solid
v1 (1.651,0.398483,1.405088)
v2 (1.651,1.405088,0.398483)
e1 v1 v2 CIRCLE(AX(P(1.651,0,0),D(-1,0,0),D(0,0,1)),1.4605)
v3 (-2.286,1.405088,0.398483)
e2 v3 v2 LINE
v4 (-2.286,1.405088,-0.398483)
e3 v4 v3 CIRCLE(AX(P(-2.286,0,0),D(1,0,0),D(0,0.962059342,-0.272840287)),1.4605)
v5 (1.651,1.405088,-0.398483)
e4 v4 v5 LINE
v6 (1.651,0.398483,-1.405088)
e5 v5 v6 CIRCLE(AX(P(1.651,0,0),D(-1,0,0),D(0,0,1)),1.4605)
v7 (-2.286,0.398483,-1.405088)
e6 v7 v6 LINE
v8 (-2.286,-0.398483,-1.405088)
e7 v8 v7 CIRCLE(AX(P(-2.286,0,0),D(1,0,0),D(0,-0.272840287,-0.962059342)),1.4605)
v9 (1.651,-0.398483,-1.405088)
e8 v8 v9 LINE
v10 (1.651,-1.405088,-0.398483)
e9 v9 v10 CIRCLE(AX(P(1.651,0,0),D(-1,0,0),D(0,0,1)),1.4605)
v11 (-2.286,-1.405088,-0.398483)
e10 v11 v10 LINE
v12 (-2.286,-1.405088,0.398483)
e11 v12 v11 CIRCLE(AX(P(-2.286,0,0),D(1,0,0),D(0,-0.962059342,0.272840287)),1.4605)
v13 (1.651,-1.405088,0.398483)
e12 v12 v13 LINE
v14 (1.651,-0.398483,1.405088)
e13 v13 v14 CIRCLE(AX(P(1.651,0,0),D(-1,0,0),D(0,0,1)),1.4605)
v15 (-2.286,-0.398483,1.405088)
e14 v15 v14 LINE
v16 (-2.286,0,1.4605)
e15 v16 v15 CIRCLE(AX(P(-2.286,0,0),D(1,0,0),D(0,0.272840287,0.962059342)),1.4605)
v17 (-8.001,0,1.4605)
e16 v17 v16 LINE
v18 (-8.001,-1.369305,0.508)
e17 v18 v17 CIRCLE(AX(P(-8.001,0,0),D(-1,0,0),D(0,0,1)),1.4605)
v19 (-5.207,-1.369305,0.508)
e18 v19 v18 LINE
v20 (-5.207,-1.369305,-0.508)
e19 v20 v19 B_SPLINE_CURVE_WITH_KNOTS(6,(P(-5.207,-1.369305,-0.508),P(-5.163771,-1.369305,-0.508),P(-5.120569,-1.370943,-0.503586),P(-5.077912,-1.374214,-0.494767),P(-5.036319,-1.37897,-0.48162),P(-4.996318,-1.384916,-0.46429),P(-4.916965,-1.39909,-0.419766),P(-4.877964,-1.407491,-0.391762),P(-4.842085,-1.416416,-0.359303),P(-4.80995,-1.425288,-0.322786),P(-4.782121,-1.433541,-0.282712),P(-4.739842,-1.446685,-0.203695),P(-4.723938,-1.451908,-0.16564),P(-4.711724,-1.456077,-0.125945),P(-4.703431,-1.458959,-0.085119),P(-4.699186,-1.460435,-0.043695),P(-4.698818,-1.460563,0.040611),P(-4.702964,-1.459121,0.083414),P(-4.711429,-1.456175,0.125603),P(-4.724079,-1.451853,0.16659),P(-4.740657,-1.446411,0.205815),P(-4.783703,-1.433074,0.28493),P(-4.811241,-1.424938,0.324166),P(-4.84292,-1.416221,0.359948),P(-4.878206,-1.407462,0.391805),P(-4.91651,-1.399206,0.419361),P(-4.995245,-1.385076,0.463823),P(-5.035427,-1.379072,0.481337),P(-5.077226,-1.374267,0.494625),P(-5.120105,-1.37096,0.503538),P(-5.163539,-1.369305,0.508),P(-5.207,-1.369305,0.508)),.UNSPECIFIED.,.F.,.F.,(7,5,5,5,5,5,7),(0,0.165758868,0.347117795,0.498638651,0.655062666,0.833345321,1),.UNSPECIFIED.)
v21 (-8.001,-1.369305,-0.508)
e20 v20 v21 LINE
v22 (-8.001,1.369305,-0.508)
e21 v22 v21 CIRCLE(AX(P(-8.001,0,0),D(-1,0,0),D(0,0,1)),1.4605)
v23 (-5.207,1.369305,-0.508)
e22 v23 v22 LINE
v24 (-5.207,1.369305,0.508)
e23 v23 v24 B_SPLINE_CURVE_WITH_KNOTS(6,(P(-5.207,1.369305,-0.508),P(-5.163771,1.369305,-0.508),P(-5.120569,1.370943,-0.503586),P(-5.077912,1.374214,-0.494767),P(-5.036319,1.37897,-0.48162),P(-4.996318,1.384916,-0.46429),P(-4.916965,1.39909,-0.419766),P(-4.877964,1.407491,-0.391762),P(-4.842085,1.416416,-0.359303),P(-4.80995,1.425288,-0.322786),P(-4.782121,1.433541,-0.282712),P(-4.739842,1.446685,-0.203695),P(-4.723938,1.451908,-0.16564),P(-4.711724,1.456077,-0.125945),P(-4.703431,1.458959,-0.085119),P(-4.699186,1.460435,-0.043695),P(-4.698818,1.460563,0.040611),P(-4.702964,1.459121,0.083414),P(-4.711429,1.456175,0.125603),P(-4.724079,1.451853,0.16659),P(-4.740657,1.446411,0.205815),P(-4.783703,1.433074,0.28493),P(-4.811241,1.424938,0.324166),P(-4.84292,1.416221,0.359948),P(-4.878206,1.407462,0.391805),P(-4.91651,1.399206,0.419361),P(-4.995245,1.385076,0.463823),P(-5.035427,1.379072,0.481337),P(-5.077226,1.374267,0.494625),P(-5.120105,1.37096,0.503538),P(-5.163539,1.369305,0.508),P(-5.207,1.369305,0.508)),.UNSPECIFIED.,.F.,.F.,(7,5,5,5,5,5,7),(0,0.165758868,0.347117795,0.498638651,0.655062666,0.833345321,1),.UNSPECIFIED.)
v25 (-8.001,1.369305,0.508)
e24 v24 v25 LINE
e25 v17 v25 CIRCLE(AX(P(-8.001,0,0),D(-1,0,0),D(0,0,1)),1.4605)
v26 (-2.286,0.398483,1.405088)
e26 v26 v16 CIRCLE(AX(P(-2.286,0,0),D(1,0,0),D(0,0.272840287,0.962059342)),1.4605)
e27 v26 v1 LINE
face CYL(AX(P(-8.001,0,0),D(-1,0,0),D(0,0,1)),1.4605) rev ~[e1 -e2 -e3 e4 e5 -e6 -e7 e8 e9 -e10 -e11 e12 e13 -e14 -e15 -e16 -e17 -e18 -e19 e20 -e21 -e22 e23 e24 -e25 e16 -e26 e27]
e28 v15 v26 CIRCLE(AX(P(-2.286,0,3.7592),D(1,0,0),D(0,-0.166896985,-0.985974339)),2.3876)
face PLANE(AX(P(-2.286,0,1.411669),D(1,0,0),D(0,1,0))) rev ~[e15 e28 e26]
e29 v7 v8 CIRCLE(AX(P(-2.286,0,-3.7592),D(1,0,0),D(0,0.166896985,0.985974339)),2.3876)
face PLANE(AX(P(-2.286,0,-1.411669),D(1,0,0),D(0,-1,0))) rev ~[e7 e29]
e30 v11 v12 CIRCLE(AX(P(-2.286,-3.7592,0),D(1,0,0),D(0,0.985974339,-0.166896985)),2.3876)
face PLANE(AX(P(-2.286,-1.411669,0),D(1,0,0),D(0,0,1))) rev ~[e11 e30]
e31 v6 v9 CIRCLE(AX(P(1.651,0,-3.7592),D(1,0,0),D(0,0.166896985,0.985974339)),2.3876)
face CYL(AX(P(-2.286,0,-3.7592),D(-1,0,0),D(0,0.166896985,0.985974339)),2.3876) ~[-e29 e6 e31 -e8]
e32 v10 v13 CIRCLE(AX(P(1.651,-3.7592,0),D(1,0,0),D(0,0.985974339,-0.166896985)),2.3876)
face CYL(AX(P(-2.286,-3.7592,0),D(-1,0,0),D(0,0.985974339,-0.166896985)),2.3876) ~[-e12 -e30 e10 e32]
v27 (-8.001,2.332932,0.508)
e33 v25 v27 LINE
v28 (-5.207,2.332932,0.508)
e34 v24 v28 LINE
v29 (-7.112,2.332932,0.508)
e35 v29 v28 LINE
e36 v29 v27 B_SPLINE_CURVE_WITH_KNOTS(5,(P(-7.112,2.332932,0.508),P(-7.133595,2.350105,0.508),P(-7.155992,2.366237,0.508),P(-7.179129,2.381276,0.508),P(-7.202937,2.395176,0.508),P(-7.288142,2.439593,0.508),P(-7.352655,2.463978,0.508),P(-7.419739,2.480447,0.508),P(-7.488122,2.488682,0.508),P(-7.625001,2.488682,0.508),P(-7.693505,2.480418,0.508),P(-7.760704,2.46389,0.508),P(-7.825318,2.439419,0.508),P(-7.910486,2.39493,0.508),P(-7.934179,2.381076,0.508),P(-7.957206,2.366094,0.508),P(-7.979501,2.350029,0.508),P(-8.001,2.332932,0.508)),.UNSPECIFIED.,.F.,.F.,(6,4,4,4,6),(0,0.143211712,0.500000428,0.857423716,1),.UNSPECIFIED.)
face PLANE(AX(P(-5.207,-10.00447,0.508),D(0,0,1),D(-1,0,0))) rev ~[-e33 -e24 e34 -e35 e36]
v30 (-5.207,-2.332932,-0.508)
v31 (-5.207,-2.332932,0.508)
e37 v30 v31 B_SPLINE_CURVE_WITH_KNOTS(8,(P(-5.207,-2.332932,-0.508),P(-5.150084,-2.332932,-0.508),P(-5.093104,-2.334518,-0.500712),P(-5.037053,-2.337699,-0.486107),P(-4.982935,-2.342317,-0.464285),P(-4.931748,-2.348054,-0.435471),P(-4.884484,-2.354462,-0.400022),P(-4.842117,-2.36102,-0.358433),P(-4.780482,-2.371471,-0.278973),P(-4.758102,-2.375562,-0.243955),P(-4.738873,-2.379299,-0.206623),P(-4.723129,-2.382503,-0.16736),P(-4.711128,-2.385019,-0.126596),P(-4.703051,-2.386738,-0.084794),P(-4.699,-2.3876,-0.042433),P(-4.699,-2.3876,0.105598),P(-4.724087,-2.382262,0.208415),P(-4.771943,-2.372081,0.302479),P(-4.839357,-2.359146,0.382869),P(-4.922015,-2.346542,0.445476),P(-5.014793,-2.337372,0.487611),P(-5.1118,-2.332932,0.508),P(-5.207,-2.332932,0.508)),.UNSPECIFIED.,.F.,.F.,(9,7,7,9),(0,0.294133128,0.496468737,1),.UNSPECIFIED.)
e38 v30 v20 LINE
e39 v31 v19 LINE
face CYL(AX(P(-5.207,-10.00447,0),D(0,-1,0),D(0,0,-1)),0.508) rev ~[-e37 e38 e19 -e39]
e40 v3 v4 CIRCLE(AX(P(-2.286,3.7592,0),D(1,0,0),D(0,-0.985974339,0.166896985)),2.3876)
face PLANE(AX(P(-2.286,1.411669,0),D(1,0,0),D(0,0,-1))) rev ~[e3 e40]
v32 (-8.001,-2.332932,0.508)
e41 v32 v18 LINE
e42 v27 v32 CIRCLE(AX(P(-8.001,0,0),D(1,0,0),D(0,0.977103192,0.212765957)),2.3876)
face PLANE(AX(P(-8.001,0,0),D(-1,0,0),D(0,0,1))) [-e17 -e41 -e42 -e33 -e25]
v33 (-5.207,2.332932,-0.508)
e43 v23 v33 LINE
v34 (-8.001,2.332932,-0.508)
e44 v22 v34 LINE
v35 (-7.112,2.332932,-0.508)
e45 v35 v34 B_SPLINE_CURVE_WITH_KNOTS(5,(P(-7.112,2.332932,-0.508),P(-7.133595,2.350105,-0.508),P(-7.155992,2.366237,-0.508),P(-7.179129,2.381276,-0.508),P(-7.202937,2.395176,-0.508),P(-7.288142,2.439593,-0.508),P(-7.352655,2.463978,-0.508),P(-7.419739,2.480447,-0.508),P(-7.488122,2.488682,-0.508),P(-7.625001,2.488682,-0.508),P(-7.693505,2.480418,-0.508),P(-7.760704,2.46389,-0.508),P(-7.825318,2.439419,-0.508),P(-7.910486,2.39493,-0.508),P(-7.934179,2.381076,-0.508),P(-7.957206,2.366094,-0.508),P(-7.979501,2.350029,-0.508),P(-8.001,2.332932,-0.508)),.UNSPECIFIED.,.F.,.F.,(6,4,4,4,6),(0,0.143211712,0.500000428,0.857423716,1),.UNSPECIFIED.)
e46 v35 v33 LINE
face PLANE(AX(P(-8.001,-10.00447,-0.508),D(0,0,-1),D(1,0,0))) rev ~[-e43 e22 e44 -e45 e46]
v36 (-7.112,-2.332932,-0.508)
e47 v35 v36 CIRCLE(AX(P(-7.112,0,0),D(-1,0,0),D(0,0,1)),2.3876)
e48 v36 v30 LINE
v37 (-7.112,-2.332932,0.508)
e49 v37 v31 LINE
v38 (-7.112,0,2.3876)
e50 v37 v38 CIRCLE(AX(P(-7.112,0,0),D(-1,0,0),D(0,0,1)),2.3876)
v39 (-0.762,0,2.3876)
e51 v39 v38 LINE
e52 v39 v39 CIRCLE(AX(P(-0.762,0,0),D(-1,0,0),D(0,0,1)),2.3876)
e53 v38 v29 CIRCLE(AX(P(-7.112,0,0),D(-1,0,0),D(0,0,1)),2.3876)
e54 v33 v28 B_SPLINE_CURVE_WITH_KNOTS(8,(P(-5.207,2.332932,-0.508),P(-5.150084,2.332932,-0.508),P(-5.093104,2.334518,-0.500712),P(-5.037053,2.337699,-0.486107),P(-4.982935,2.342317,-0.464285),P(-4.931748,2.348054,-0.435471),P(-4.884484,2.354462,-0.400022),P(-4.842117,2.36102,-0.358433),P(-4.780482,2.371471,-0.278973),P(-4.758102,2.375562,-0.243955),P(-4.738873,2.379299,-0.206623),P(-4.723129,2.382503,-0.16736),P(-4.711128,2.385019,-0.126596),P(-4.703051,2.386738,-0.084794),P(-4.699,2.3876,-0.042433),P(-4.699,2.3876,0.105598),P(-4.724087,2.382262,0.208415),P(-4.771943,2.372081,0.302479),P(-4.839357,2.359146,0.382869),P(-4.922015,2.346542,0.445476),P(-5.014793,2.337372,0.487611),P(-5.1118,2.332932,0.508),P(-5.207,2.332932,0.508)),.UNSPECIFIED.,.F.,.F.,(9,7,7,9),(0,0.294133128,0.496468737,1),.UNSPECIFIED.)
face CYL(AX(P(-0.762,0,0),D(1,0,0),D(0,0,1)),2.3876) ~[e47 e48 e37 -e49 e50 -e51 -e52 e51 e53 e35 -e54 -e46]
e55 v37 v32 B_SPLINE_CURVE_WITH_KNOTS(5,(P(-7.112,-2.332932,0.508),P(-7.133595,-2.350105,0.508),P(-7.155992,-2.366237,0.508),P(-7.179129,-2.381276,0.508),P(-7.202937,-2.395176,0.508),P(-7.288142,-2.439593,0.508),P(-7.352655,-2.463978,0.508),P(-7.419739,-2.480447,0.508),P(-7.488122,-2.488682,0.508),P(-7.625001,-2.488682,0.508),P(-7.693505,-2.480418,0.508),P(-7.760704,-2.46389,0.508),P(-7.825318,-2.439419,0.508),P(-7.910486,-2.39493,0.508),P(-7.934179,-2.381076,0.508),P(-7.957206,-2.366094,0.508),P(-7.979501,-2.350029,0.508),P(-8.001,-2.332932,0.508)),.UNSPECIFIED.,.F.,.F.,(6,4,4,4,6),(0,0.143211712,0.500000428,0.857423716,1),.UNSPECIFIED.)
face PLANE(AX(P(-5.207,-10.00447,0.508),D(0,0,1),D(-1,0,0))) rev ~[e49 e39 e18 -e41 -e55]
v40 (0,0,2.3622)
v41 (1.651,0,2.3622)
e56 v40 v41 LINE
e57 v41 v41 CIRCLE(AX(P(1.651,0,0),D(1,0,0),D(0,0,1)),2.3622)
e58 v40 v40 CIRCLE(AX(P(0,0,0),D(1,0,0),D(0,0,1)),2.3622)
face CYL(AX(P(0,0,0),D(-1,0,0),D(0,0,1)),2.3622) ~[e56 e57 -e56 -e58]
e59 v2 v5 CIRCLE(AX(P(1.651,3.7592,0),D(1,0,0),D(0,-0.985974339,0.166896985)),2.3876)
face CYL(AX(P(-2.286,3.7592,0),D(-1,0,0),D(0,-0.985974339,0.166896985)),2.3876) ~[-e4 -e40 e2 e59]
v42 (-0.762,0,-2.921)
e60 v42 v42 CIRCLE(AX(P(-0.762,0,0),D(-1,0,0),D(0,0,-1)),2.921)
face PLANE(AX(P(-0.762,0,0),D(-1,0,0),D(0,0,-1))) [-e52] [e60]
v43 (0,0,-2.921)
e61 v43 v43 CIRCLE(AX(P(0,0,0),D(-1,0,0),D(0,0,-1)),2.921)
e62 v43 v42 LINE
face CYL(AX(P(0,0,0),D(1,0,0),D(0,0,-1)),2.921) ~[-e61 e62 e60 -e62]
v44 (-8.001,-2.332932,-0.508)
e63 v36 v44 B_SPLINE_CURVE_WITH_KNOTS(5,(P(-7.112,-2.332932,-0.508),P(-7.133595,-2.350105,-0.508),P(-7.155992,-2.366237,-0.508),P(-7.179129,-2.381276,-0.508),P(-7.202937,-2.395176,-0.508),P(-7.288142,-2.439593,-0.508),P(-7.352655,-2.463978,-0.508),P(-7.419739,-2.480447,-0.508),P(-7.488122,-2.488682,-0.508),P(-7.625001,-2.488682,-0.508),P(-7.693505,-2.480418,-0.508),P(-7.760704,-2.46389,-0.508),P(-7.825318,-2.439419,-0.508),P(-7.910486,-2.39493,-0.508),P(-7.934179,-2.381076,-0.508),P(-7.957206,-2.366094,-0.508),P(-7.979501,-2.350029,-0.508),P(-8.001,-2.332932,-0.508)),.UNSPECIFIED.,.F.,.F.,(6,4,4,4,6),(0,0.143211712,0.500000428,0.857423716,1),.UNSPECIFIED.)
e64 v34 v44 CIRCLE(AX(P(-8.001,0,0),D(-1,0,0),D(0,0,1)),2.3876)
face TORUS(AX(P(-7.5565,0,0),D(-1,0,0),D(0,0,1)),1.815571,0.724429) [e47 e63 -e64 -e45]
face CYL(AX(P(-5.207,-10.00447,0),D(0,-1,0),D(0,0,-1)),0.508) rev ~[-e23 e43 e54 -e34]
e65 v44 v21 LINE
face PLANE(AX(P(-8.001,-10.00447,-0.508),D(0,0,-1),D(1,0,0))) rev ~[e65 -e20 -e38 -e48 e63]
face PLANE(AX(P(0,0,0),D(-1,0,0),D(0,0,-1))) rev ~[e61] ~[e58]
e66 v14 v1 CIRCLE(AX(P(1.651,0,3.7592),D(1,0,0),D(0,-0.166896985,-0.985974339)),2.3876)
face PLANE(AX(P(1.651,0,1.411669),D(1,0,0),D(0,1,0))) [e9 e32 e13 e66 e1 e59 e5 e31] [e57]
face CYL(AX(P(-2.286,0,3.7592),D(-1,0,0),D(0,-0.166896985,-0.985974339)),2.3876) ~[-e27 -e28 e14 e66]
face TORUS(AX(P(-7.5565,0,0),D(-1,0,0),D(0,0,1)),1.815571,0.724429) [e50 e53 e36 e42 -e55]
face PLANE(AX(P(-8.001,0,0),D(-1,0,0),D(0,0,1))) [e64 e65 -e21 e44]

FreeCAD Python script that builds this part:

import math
import FreeCAD as App
import Part
import Sketcher
from FreeCAD import Vector
Q = App.Units.Quantity

doc = App.newDocument("Part")
body = doc.addObject("PartDesign::Body", "Body")

sketch1 = body.newObject("Sketcher::SketchObject", "Sketch")
sketch1.AttachmentSupport = (doc.getObject("YZ_Plane"), [""])
sketch1.MapMode = "FlatFace"
sketch1.addGeometry(Part.Circle(Vector(0, 0, 0), Vector(0, 0, 1), 2.3622), False)
sketch1.addConstraint([
    Sketcher.Constraint("Coincident", 0, 3, -1, 1),
    Sketcher.Constraint("Diameter", 0, Q("0.186 in")),
])
pad1 = body.newObject("PartDesign::Pad", "Pad")
pad1.Profile = sketch1
pad1.Length = Q("0.065 in")

sketch2 = body.newObject("Sketcher::SketchObject", "Sketch001")
sketch2.AttachmentSupport = (doc.getObject("YZ_Plane"), [""])
sketch2.MapMode = "FlatFace"
sketch2.addGeometry(Part.Circle(Vector(0, 0, 0), Vector(0, 0, 1), 2.921), False)
sketch2.addConstraint([
    Sketcher.Constraint("Coincident", 0, 3, -1, 1),
    Sketcher.Constraint("Diameter", 0, Q("0.23 in")),
])
pad2 = body.newObject("PartDesign::Pad", "Pad001")
pad2.Profile = sketch2
pad2.Length = Q("0.03 in")
pad2.Reversed = True

sketch3 = body.newObject("Sketcher::SketchObject", "Sketch002")
sketch3.AttachmentSupport = (doc.getObject("YZ_Plane"), [""])
sketch3.MapMode = "FlatFace"
sketch3.AttachmentOffset = App.Placement(Vector(0, 0, -0.03 * 25.4), App.Rotation())
sketch3.addGeometry(Part.Circle(Vector(0, 0, 0), Vector(0, 0, 1), 2.3876), False)
sketch3.addConstraint([
    Sketcher.Constraint("Coincident", 0, 3, -1, 1),
    Sketcher.Constraint("Diameter", 0, Q("0.188 in")),
])
pad3 = body.newObject("PartDesign::Pad", "Pad002")
pad3.Profile = sketch3
pad3.Length = Q("0.285 in")
pad3.Reversed = True

sketch4 = body.newObject("Sketcher::SketchObject", "Sketch003")
sketch4.AttachmentSupport = (doc.getObject("XZ_Plane"), [""])
sketch4.MapMode = "FlatFace"
sketch4.addGeometry([
    Part.LineSegment(Vector(-8.001, -2.3876, 0), Vector(-7.112, -2.3876, 0)),
    Part.ArcOfCircle(Part.Circle(Vector(-7.5565, -1.815571, 0), Vector(0, 0, 1), 0.724429), math.radians(-127.849289), math.radians(-52.150711)),
], False)
sketch4.addConstraint([
    Sketcher.Constraint("Coincident", 0, 1, 1, 1),
    Sketcher.Constraint("Coincident", 1, 2, 0, 2),
    Sketcher.Constraint("Horizontal", 0),
    Sketcher.Constraint("DistanceX", 0, 1, 0, 2, Q("0.035 in")),
    Sketcher.Constraint("DistanceX", 1, 2, -1, 1, Q("0.28 in")),
    Sketcher.Constraint("DistanceY", 0, 1, -1, 1, Q("0.094 in")),
    Sketcher.Constraint("Radius", 1, Q("0.724429 mm")),
])
revolution = body.newObject("PartDesign::Revolution", "Revolution")
revolution.Profile = sketch4
revolution.ReferenceAxis = (sketch4, ["H_Axis"])
revolution.Angle = 360

sketch5 = body.newObject("Sketcher::SketchObject", "Sketch004")
sketch5.AttachmentSupport = (doc.getObject("YZ_Plane"), [""])
sketch5.MapMode = "FlatFace"
sketch5.AttachmentOffset = App.Placement(Vector(0, 0, -0.315 * 25.4), App.Rotation())
sketch5.addGeometry(Part.Circle(Vector(0, 0, 0), Vector(0, 0, 1), 1.4605), False)
sketch5.addConstraint([
    Sketcher.Constraint("Coincident", 0, 3, -1, 1),
    Sketcher.Constraint("Diameter", 0, Q("0.115 in")),
])
pocket1 = body.newObject("PartDesign::Pocket", "Pocket")
pocket1.Profile = sketch5
pocket1.Type = "ThroughAll"
pocket1.Reversed = True

sketch6 = body.newObject("Sketcher::SketchObject", "Sketch005")
sketch6.AttachmentSupport = (doc.getObject("XZ_Plane"), [""])
sketch6.MapMode = "FlatFace"
sketch6.addGeometry([
    Part.LineSegment(Vector(-5.207, -0.508, 0), Vector(-8.001, -0.508, 0)),
    Part.LineSegment(Vector(-8.001, -0.508, 0), Vector(-8.001, 0.508, 0)),
    Part.LineSegment(Vector(-8.001, 0.508, 0), Vector(-5.207, 0.508, 0)),
    Part.ArcOfCircle(Part.Circle(Vector(-5.207, 0, 0), Vector(0, 0, 1), 0.508), math.radians(-90), math.radians(90)),
], False)
sketch6.addConstraint([
    Sketcher.Constraint("Coincident", 0, 2, 1, 1),
    Sketcher.Constraint("Coincident", 1, 2, 2, 1),
    Sketcher.Constraint("Tangent", 2, 2, 3, 2),
    Sketcher.Constraint("Tangent", 3, 1, 0, 1),
    Sketcher.Constraint("Horizontal", 0),
    Sketcher.Constraint("Vertical", 1),
    Sketcher.Constraint("Horizontal", 2),
    Sketcher.Constraint("PointOnObject", 3, 3, -1),
    Sketcher.Constraint("Radius", 3, Q("0.02 in")),
    Sketcher.Constraint("DistanceX", 0, 2, 0, 1, Q("0.11 in")),
    Sketcher.Constraint("DistanceX", 3, 3, -1, 1, Q("0.205 in")),
])
pocket2 = body.newObject("PartDesign::Pocket", "Pocket001")
pocket2.Profile = sketch6
pocket2.Type = "ThroughAll"
pocket2.Midplane = True

sketch7 = body.newObject("Sketcher::SketchObject", "Sketch006")
sketch7.AttachmentSupport = (doc.getObject("YZ_Plane"), [""])
sketch7.MapMode = "FlatFace"
sketch7.AttachmentOffset = App.Placement(Vector(0, 0, -0.09 * 25.4), App.Rotation())
sketch7.addGeometry([
    Part.ArcOfCircle(Part.Circle(Vector(0, 0, 0), Vector(0, 0, 1), 1.4605), math.radians(-15.833351), math.radians(15.833351)),
    Part.ArcOfCircle(Part.Circle(Vector(3.7592, 0, 0), Vector(0, 0, 1), 2.3876), math.radians(170.392548), math.radians(189.607452)),
], False)
sketch7.addConstraint([
    Sketcher.Constraint("Coincident", 0, 1, 1, 2),
    Sketcher.Constraint("Coincident", 1, 1, 0, 2),
    Sketcher.Constraint("Coincident", 0, 3, -1, 1),
    Sketcher.Constraint("PointOnObject", 1, 3, -1),
    Sketcher.Constraint("Radius", 1, Q("0.094 in")),
    Sketcher.Constraint("Radius", 0, Q("0.0575 in")),
    Sketcher.Constraint("DistanceX", -1, 1, 1, 3, Q("0.148 in")),
])
pad4 = body.newObject("PartDesign::Pad", "Pad003")
pad4.Profile = sketch7
pad4.Length = Q("0.155 in")
doc.recompute()

polarpattern = body.newObject("PartDesign::PolarPattern", "PolarPattern")
polarpattern.Originals = [pad4]
polarpattern.Axis = (doc.getObject("X_Axis"), [""])
polarpattern.Angle = 360
polarpattern.Occurrences = 4
body.Tip = polarpattern

doc.recompute()
